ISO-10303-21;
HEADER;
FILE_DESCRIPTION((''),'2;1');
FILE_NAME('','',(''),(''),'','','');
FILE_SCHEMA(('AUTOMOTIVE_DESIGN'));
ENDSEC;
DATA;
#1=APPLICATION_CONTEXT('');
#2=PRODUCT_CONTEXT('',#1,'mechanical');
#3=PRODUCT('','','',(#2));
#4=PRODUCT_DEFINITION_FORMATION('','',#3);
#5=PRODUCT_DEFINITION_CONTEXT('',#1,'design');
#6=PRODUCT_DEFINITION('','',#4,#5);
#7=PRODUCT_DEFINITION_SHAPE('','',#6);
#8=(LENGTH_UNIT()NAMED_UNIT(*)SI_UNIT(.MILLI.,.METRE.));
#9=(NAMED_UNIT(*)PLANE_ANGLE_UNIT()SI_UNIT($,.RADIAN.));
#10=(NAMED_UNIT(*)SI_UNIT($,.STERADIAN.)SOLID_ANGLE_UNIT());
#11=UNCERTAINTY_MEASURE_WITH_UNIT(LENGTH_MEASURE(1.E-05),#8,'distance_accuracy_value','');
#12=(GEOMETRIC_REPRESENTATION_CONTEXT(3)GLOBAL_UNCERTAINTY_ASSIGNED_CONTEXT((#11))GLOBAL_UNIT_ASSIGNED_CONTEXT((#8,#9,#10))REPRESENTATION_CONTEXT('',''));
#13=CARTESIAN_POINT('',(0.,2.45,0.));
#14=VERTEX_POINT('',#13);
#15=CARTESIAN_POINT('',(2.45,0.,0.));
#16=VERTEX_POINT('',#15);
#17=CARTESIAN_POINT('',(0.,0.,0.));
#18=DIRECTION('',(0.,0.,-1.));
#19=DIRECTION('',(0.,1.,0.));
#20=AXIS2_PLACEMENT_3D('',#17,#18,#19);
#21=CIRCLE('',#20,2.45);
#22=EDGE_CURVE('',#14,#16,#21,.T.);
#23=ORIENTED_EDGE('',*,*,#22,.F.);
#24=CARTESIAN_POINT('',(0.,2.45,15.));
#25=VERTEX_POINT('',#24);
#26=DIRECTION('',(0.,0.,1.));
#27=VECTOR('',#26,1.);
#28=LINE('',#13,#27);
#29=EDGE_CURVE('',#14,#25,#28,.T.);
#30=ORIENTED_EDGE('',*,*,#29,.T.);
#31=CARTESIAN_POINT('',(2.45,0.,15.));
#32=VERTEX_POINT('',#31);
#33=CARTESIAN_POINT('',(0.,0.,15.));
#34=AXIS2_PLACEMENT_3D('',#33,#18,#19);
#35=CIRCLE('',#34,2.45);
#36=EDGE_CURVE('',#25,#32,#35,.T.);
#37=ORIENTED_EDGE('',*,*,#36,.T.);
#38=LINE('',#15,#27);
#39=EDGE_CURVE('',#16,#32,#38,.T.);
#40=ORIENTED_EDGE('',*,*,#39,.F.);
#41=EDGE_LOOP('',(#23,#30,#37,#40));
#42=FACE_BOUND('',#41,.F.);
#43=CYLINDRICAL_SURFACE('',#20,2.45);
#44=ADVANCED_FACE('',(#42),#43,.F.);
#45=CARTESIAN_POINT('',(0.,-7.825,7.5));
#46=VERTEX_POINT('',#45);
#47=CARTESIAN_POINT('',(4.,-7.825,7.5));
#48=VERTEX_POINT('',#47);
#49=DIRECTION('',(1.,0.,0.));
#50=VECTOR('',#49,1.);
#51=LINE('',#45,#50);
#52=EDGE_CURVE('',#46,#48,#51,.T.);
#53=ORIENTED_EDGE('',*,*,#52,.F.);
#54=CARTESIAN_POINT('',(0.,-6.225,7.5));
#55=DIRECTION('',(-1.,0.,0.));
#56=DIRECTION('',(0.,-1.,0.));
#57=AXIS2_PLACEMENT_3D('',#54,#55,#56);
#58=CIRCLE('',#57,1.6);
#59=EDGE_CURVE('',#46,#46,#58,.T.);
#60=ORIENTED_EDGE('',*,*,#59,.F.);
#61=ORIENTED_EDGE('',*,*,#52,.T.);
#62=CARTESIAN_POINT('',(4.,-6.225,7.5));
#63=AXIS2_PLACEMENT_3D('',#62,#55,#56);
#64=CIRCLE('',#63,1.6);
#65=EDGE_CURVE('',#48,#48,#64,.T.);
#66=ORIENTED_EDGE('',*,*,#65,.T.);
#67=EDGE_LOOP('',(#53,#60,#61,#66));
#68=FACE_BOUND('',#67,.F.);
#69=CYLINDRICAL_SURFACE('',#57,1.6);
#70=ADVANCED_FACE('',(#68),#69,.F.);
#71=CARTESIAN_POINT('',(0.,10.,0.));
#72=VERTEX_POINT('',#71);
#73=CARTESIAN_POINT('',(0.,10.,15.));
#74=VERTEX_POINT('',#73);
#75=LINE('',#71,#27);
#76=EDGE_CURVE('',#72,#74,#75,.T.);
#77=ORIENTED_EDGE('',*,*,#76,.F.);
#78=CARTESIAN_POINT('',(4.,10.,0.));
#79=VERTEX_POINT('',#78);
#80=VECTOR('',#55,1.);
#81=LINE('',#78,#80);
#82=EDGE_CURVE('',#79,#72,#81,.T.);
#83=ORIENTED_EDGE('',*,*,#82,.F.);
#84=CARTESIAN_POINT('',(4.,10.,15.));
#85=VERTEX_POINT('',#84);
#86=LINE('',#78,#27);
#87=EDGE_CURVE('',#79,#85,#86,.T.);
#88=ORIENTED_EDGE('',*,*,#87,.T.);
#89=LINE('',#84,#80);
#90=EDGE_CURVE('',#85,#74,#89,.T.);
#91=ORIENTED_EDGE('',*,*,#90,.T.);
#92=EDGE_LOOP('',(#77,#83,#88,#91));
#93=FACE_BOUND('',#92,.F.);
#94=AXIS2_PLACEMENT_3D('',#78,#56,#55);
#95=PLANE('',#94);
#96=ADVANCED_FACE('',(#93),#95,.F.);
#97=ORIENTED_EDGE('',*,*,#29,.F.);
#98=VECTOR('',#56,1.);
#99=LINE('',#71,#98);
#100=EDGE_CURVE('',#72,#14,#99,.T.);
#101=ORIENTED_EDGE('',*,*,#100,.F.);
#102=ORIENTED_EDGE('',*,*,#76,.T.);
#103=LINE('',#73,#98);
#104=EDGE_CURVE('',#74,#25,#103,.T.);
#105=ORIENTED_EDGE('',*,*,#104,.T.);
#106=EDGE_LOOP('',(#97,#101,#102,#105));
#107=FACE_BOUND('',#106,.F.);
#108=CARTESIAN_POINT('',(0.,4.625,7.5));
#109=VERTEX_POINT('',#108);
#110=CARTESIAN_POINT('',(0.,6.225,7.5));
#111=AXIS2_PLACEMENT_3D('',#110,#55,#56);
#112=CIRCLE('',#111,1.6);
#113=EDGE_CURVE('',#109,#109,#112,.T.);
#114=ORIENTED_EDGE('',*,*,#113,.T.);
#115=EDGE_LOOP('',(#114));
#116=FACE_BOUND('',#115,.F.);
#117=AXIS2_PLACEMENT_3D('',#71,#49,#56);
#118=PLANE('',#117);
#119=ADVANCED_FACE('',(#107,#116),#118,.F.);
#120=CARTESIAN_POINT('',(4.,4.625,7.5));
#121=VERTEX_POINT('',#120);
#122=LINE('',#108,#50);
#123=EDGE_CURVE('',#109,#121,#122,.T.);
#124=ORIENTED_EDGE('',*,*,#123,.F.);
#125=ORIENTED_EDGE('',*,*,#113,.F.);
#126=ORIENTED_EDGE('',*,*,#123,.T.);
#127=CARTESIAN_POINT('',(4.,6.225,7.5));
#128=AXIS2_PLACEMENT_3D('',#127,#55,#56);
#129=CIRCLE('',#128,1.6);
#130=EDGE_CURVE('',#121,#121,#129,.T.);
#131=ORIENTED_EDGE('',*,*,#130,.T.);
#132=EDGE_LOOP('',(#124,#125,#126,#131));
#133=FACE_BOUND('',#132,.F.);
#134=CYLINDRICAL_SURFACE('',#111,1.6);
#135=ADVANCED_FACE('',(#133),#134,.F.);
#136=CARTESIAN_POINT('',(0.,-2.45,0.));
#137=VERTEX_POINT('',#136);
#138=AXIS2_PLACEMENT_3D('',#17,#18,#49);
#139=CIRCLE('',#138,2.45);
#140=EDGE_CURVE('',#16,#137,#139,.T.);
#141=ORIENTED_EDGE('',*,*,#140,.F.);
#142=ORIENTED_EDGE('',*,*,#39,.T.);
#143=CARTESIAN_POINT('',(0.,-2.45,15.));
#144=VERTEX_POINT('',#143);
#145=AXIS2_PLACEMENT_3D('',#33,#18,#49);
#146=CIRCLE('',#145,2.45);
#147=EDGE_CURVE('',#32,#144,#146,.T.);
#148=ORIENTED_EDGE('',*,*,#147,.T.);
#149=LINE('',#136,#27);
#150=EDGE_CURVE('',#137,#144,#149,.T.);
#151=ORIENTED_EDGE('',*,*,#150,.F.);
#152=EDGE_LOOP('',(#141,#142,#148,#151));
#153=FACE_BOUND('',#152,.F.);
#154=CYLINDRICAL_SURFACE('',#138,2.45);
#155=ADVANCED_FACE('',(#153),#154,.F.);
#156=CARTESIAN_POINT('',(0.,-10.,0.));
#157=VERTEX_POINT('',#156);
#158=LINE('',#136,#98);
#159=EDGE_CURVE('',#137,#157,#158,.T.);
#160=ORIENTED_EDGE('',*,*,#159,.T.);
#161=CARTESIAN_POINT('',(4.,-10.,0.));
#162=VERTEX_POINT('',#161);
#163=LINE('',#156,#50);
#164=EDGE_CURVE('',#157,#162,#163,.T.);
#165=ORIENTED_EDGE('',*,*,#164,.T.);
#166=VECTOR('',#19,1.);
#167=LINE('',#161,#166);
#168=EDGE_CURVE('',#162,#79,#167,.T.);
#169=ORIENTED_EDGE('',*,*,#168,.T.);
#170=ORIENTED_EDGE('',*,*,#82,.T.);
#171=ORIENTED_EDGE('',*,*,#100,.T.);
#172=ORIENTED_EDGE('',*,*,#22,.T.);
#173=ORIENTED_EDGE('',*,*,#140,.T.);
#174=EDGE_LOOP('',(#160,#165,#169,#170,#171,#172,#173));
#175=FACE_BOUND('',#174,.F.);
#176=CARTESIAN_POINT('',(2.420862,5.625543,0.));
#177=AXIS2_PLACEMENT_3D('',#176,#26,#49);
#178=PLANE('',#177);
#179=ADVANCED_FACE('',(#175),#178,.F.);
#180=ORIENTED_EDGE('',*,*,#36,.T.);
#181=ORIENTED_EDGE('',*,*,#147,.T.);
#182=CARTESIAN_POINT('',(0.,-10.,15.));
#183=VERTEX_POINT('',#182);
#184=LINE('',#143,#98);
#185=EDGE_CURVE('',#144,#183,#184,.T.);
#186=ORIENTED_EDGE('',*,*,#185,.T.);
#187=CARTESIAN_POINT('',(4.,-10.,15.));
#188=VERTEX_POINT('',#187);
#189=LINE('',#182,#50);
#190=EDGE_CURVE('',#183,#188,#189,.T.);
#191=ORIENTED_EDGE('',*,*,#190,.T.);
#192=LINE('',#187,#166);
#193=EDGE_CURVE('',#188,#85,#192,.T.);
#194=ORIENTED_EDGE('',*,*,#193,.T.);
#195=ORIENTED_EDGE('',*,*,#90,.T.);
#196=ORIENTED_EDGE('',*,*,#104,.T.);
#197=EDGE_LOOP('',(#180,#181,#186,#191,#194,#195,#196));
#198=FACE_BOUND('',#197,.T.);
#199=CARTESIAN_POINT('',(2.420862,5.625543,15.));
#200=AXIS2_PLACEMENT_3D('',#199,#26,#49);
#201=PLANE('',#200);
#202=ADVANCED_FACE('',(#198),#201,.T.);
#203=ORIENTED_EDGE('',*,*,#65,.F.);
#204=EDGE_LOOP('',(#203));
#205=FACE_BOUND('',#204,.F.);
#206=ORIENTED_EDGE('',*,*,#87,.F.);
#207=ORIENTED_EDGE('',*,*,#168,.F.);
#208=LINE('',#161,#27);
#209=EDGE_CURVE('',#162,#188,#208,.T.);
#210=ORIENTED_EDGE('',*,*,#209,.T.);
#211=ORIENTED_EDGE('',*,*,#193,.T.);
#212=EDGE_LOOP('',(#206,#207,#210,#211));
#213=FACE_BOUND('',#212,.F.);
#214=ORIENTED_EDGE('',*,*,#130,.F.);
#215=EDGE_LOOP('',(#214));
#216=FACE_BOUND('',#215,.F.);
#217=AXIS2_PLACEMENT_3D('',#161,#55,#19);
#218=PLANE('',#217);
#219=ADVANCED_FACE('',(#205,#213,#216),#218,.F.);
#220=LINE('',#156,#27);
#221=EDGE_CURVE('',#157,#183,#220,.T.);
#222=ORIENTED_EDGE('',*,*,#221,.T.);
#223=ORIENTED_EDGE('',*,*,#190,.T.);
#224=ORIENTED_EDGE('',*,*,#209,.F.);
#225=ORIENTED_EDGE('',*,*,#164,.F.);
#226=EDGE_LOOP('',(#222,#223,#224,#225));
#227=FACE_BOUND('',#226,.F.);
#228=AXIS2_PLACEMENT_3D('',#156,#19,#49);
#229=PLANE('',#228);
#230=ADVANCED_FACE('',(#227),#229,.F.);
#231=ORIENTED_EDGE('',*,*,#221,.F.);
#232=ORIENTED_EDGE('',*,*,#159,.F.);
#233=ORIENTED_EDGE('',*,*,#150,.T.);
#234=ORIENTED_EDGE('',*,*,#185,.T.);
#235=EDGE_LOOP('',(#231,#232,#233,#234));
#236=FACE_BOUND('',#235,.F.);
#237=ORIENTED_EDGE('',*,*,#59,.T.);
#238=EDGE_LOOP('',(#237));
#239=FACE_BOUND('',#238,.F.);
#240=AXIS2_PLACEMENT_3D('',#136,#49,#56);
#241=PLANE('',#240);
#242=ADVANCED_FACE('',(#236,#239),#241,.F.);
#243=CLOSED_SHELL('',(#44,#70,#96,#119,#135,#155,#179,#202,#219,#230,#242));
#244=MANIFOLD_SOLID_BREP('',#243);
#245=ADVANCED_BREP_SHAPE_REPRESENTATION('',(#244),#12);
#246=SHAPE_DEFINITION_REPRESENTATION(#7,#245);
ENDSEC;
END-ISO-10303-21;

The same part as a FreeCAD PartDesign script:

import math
import FreeCAD as App
import Part
import Sketcher
Q = App.Units.Quantity

doc = App.newDocument("Part")
body = doc.addObject("PartDesign::Body", "Body")

sketch1 = doc.addObject("Sketcher::SketchObject", "Sketch")
body.addObject(sketch1)
sketch1.AttachmentSupport = (doc.XY_Plane, [""])
sketch1.MapMode = "FlatFace"
sketch1.addGeometry([
    Part.LineSegment(App.Vector(4, 10, 0), App.Vector(0, 10, 0)),
    Part.LineSegment(App.Vector(0, 10, 0), App.Vector(0, 2.45, 0)),
    Part.ArcOfCircle(Part.Circle(App.Vector(0, 0, 0), App.Vector(0, 0, 1), 2.45), math.radians(0), math.radians(90)),
    Part.ArcOfCircle(Part.Circle(App.Vector(0, 0, 0), App.Vector(0, 0, 1), 2.45), math.radians(-90), math.radians(0)),
    Part.LineSegment(App.Vector(0, -2.45, 0), App.Vector(0, -10, 0)),
    Part.LineSegment(App.Vector(0, -10, 0), App.Vector(4, -10, 0)),
    Part.LineSegment(App.Vector(4, -10, 0), App.Vector(4, 10, 0)),
], False)
sketch1.addConstraint([
    Sketcher.Constraint("Coincident", 0, 2, 1, 1),
    Sketcher.Constraint("Coincident", 1, 2, 2, 2),
    Sketcher.Constraint("Tangent", 2, 1, 3, 2),
    Sketcher.Constraint("Coincident", 3, 1, 4, 1),
    Sketcher.Constraint("Coincident", 4, 2, 5, 1),
    Sketcher.Constraint("Coincident", 5, 2, 6, 1),
    Sketcher.Constraint("Coincident", 6, 2, 0, 1),
    Sketcher.Constraint("Horizontal", 0),
    Sketcher.Constraint("Vertical", 1),
    Sketcher.Constraint("Vertical", 4),
    Sketcher.Constraint("Horizontal", 5),
    Sketcher.Constraint("Vertical", 6),
    Sketcher.Constraint("Coincident", 2, 3, -1, 1),
    Sketcher.Constraint("Equal", 2, 3),
    Sketcher.Constraint("Symmetric", 0, 2, 4, 2, -1, 1),
    Sketcher.Constraint("PointOnObject", 0, 2, -2),
    Sketcher.Constraint("PointOnObject", 2, 1, -1),
    Sketcher.Constraint("DistanceX", 0, 2, 0, 1, Q("4 mm")),
    Sketcher.Constraint("DistanceY", 6, 1, 6, 2, Q("20 mm")),
    Sketcher.Constraint("Radius", 2, Q("2.45 mm")),
])
pad1 = doc.addObject("PartDesign::Pad", "Pad")
body.addObject(pad1)
pad1.Profile = sketch1
pad1.Length = 15

sketch2 = doc.addObject("Sketcher::SketchObject", "Sketch001")
body.addObject(sketch2)
sketch2.AttachmentSupport = (doc.YZ_Plane, [""])
sketch2.MapMode = "FlatFace"
sketch2.addGeometry(Part.Circle(App.Vector(-6.225, 7.5, 0), App.Vector(0, 0, 1), 1.6), False)
sketch2.addConstraint([
    Sketcher.Constraint("Diameter", 0, Q("3.2 mm")),
    Sketcher.Constraint("DistanceY", -1, 1, 0, 3, Q("7.5 mm")),
    Sketcher.Constraint("DistanceX", 0, 3, -1, 1, Q("6.225 mm")),
])
pocket1 = doc.addObject("PartDesign::Pocket", "Pocket")
body.addObject(pocket1)
pocket1.Profile = sketch2
pocket1.Length = 25
pocket1.Reversed = True

sketch3 = doc.addObject("Sketcher::SketchObject", "Sketch002")
body.addObject(sketch3)
sketch3.AttachmentSupport = (doc.YZ_Plane, [""])
sketch3.MapMode = "FlatFace"
sketch3.addGeometry(Part.Circle(App.Vector(6.225, 7.5, 0), App.Vector(0, 0, 1), 1.6), False)
sketch3.addConstraint([
    Sketcher.Constraint("Diameter", 0, Q("3.2 mm")),
    Sketcher.Constraint("DistanceY", -1, 1, 0, 3, Q("7.5 mm")),
    Sketcher.Constraint("DistanceX", -1, 1, 0, 3, Q("6.225 mm")),
])
pocket2 = doc.addObject("PartDesign::Pocket", "Pocket001")
body.addObject(pocket2)
pocket2.Profile = sketch3
pocket2.Length = 25
pocket2.Reversed = True

doc.recompute()
